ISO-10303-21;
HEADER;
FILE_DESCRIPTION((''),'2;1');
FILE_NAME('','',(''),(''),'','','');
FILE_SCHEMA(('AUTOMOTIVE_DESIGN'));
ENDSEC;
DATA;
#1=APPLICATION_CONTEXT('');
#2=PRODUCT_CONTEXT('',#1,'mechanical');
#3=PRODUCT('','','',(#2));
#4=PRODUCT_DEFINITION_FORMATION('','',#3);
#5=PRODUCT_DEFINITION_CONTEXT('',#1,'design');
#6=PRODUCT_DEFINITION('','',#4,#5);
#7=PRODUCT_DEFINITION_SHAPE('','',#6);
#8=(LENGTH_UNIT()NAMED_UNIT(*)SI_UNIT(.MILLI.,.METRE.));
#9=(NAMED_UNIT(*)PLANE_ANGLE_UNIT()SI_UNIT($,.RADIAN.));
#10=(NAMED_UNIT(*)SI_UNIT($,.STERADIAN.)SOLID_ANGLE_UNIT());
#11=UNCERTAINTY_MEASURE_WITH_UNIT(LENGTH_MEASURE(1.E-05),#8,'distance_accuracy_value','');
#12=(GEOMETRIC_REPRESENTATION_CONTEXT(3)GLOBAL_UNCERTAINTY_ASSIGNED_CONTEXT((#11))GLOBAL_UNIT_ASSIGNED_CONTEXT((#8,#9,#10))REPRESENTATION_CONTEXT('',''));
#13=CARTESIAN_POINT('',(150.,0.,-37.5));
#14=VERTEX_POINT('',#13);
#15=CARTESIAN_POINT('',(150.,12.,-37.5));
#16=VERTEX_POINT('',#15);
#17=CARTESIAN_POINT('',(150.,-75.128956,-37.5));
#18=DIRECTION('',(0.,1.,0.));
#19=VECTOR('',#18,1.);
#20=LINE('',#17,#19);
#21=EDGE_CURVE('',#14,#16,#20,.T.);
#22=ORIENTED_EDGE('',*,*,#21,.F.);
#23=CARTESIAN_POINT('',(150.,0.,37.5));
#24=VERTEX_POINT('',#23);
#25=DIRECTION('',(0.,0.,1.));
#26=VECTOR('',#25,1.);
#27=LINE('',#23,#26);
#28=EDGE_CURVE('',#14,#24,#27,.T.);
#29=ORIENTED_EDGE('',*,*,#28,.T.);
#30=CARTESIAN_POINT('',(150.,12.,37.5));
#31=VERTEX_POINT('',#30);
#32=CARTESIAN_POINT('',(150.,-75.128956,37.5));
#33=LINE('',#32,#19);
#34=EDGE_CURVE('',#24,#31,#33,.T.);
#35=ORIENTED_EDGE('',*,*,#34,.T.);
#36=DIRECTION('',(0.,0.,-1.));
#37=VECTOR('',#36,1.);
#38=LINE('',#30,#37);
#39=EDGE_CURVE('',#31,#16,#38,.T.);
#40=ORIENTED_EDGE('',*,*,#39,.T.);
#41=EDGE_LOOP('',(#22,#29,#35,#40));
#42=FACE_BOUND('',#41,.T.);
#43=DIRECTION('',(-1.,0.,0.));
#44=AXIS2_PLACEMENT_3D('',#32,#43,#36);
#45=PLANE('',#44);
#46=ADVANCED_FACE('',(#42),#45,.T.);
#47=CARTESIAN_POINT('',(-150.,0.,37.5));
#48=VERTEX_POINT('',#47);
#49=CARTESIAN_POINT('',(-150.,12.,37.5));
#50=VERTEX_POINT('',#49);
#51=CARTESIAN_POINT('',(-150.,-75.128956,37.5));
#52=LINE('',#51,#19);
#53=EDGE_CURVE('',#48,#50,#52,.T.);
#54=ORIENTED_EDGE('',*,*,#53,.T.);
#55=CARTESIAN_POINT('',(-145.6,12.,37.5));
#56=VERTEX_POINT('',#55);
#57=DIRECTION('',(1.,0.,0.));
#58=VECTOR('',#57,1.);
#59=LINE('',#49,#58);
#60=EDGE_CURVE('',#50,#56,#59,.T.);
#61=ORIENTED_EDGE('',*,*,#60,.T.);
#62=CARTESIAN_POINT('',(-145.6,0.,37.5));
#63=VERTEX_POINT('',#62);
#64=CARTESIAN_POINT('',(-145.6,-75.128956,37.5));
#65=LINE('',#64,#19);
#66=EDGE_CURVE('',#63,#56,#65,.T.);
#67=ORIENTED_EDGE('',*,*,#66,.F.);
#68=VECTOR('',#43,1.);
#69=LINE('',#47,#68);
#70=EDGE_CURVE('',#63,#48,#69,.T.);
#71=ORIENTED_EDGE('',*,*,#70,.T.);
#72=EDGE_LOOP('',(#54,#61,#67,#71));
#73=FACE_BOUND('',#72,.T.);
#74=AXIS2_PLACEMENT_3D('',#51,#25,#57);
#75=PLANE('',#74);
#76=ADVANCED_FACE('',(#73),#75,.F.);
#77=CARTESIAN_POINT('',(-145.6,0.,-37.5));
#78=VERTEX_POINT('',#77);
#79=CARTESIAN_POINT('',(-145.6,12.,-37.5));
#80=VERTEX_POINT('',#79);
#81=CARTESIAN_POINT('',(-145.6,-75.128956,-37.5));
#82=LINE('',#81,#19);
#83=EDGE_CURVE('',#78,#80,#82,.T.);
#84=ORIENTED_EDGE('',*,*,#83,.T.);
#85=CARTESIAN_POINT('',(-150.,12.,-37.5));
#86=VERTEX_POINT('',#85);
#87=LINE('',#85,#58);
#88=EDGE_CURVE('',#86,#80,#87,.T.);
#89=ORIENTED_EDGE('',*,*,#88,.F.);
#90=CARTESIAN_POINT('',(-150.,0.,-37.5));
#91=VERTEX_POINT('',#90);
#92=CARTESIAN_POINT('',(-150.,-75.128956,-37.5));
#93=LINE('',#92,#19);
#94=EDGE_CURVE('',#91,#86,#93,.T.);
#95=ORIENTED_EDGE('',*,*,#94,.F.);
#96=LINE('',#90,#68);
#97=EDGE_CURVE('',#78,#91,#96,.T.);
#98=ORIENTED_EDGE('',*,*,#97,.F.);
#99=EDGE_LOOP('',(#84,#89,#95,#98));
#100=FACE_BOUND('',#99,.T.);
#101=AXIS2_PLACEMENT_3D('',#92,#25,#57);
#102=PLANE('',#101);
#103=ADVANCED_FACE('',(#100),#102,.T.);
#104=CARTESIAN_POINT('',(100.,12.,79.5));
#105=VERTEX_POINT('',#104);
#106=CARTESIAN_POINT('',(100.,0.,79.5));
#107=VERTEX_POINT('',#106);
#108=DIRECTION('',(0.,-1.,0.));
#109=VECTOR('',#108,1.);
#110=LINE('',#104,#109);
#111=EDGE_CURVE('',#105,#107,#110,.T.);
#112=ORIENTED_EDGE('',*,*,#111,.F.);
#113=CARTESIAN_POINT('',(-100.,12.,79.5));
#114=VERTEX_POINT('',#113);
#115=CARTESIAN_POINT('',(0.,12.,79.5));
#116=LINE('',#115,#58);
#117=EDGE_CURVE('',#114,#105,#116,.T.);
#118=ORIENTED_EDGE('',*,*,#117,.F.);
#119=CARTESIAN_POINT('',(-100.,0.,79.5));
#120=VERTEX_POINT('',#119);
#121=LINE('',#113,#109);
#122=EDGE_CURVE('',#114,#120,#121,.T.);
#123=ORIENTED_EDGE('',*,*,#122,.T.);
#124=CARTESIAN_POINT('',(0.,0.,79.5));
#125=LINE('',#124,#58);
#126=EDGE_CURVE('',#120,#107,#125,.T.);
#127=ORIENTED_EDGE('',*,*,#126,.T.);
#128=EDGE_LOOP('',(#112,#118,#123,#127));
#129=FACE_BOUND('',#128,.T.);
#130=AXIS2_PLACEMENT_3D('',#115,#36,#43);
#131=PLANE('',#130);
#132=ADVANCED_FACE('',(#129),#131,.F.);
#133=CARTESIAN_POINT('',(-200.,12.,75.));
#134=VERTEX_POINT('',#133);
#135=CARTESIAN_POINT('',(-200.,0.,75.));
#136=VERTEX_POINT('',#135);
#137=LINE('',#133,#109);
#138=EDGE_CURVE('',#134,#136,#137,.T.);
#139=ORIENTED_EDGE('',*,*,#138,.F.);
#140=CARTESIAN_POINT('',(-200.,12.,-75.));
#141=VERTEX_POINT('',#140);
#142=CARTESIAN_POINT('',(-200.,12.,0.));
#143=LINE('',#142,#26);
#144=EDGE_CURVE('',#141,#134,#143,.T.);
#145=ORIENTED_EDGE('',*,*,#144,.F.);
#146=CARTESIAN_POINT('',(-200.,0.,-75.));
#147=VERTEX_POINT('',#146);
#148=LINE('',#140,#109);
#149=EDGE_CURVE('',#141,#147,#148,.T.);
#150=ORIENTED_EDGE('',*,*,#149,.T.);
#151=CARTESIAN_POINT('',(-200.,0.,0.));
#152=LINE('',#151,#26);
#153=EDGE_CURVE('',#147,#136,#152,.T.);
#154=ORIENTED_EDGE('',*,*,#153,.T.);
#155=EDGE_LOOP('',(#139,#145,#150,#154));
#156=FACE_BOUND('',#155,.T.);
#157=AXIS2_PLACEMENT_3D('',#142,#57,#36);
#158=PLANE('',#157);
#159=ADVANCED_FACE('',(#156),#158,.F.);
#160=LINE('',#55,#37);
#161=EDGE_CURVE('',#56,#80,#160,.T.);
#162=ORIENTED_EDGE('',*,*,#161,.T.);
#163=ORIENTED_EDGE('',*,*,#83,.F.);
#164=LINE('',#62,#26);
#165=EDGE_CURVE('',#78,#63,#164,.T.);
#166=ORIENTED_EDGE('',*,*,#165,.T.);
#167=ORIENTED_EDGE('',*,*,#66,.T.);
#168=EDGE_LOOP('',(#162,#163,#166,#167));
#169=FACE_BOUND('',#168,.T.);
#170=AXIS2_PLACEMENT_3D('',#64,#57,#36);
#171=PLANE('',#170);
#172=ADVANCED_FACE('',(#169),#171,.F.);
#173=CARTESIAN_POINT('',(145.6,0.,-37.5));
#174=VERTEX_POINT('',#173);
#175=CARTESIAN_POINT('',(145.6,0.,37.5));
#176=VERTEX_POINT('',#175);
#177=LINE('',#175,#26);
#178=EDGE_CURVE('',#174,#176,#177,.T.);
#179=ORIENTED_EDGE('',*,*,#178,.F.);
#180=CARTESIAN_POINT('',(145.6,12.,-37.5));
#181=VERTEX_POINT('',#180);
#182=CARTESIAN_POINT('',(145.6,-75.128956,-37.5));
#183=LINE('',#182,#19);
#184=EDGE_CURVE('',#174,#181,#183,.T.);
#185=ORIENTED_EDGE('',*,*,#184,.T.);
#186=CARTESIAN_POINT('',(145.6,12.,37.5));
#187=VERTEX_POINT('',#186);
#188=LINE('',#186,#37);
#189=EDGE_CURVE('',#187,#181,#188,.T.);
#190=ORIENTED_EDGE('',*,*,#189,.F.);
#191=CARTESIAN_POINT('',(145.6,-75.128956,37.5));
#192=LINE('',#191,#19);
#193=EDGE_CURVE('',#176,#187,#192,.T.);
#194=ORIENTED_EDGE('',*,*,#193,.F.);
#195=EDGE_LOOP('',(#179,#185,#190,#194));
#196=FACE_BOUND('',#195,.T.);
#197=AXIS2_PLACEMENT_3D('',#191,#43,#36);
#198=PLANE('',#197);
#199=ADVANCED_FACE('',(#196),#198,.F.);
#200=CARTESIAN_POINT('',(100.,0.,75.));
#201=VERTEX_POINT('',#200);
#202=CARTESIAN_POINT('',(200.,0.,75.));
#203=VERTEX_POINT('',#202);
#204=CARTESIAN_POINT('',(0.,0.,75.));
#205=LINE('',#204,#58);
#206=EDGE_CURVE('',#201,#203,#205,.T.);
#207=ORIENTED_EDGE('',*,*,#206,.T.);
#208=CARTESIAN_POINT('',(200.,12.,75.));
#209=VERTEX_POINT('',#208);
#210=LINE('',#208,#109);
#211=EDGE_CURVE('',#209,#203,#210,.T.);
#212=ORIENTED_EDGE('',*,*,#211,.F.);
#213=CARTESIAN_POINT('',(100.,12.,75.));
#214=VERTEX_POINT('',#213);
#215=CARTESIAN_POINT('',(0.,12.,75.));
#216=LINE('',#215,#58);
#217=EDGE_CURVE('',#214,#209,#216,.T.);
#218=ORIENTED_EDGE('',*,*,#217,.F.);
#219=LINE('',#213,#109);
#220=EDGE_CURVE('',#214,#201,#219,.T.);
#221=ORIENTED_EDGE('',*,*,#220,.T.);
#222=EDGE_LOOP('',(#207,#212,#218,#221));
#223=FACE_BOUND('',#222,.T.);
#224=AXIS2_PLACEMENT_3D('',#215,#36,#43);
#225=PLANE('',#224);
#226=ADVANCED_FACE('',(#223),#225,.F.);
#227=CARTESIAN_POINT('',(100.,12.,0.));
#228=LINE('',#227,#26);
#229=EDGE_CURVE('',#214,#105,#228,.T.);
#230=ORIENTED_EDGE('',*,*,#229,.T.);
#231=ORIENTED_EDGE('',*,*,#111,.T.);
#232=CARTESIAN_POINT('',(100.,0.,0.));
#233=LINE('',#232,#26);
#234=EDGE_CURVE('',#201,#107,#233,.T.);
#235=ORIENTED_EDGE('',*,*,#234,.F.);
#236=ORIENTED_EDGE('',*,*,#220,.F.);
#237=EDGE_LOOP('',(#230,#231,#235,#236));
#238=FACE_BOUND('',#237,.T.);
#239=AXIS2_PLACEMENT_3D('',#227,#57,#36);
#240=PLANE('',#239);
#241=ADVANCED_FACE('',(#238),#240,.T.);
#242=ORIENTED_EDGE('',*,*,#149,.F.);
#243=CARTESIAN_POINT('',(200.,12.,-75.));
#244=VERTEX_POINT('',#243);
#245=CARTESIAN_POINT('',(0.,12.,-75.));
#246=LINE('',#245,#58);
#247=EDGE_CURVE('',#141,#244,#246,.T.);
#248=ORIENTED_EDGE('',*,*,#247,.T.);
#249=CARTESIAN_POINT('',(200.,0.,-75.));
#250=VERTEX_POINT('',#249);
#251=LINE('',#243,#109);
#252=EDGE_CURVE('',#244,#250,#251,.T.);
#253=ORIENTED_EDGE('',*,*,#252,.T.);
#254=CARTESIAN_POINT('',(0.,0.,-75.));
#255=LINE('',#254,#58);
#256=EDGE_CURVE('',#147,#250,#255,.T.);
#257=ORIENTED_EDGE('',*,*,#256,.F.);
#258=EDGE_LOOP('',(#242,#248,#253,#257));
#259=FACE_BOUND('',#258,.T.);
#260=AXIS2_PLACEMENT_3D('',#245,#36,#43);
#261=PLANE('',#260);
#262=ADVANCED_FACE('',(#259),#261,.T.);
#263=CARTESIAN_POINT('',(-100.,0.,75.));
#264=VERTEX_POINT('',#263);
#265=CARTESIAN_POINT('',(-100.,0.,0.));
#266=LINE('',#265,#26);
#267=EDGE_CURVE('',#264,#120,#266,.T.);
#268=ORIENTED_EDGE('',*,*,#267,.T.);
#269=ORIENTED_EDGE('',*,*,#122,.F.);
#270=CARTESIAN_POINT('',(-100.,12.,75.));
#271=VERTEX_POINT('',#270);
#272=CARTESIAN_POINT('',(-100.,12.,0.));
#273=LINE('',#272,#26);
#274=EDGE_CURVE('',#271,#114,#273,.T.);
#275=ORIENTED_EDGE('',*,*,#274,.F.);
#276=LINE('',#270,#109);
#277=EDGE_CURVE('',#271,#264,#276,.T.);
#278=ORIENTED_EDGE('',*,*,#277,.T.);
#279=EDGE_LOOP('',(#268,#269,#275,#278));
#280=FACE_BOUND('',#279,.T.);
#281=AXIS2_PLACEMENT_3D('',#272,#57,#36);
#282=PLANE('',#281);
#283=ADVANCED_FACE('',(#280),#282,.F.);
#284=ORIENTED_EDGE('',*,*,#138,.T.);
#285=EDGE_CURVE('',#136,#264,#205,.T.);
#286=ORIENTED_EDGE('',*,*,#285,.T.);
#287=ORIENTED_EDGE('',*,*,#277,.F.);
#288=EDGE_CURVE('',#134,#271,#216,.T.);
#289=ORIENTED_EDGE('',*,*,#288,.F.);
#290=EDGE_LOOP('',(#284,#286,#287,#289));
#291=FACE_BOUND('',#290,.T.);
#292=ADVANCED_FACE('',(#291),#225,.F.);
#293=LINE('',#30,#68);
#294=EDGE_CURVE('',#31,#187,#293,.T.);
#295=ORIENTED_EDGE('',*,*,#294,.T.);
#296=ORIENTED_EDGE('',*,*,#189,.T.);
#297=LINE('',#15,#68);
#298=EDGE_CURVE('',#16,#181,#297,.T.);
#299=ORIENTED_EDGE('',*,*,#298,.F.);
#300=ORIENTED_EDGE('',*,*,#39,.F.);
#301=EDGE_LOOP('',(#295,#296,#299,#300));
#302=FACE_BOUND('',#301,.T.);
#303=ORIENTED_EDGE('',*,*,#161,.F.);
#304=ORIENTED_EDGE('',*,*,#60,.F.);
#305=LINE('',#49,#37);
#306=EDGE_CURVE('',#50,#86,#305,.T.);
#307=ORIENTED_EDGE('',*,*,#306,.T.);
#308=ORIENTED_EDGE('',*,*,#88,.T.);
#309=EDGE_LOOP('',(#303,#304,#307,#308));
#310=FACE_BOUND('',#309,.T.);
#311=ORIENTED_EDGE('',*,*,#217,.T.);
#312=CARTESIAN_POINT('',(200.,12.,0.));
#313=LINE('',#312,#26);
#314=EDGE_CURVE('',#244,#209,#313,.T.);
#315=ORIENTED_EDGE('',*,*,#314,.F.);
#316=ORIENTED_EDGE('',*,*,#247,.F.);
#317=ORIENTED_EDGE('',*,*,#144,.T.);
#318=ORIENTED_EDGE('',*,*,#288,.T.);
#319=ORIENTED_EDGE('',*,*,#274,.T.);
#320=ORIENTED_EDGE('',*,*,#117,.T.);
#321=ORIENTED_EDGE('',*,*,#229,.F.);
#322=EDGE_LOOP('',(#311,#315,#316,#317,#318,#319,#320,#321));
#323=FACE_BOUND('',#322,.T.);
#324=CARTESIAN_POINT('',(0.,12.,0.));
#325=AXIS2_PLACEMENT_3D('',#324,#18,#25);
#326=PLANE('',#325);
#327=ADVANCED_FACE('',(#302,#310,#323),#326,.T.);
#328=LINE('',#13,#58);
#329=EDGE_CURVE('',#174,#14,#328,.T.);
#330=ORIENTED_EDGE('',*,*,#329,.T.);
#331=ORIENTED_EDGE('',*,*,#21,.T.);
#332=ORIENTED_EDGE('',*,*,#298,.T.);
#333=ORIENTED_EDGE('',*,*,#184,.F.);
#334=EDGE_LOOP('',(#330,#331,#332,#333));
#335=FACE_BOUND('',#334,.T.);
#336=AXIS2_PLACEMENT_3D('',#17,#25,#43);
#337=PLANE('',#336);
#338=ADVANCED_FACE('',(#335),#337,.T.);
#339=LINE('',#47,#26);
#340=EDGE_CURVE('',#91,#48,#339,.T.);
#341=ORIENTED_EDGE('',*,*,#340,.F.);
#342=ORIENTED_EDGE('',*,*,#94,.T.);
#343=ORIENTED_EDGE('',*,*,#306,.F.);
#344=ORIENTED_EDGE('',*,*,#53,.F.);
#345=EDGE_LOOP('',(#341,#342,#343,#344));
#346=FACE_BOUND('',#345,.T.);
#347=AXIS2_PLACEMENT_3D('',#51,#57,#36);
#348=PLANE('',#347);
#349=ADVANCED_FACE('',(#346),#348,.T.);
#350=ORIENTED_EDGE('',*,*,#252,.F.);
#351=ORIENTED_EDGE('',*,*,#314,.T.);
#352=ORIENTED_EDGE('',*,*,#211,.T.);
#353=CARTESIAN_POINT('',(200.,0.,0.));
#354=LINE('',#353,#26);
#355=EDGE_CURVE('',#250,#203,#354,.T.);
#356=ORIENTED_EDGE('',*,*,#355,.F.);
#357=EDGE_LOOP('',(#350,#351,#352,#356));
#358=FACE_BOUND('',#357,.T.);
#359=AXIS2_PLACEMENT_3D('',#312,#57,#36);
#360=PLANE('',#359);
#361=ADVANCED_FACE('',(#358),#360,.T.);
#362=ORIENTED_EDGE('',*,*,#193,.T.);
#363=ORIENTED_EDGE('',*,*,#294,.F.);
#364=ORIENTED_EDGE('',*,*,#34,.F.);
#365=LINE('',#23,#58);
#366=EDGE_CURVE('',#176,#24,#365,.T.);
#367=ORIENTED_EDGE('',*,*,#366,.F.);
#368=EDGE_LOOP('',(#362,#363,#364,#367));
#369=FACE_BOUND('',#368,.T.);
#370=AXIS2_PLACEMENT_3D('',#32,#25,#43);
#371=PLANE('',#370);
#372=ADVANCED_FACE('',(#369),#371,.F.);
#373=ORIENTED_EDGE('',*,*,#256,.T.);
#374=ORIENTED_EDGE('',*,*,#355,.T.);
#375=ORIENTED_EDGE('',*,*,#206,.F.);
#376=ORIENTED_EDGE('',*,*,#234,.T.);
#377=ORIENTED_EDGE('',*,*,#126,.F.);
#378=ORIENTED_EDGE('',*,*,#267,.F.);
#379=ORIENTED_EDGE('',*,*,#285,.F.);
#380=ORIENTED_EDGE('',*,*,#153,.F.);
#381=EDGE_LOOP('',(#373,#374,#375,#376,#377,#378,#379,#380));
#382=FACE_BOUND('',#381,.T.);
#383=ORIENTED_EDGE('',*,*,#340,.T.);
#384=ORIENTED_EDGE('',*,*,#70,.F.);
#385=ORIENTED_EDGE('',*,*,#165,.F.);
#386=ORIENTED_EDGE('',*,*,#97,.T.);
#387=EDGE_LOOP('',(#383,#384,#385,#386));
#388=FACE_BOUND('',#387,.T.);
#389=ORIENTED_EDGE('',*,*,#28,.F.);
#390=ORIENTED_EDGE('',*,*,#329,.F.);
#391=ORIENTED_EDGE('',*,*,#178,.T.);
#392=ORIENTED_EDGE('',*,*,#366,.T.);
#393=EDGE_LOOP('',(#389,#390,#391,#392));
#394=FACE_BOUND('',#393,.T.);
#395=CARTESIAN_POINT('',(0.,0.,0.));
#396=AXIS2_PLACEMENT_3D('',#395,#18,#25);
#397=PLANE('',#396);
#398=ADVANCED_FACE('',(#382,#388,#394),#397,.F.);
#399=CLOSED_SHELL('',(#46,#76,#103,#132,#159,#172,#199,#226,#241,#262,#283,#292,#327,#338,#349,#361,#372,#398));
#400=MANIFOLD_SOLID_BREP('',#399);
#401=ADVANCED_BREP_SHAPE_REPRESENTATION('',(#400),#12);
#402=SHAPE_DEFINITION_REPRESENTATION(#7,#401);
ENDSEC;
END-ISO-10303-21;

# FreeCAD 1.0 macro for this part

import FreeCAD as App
import Part
import Sketcher

V = App.Vector
Q = App.Units.Quantity


def add_polygon(sketch, points):
    """Adds a closed chain of lines whose ends are joined by coincident constraints."""
    first, n = sketch.GeometryCount, len(points)
    for a, b in zip(points, points[1:] + points[:1]):
        sketch.addGeometry(Part.LineSegment(App.Vector(*a, 0), App.Vector(*b, 0)), False)
    for i in range(n):
        sketch.addConstraint(Sketcher.Constraint("Coincident", first + i, 2, first + (i + 1) % n, 1))

doc = App.newDocument("Part")
body = doc.addObject("PartDesign::Body", "Body")

sketch1 = body.newObject("Sketcher::SketchObject", "Sketch")
sketch1.AttachmentSupport = (doc.getObject("XZ_Plane"), [""])
sketch1.MapMode = "FlatFace"
add_polygon(sketch1, [(200, -75), (-200, -75), (-200, 75), (-100, 75), (-100, 79.5), (100, 79.5), (100, 75), (200, 75)])
sketch1.addConstraint(Sketcher.Constraint("Horizontal", 0))
sketch1.addConstraint(Sketcher.Constraint("Vertical", 1))
sketch1.addConstraint(Sketcher.Constraint("Horizontal", 2))
sketch1.addConstraint(Sketcher.Constraint("Vertical", 3))
sketch1.addConstraint(Sketcher.Constraint("Horizontal", 4))
sketch1.addConstraint(Sketcher.Constraint("Vertical", 5))
sketch1.addConstraint(Sketcher.Constraint("Horizontal", 6))
sketch1.addConstraint(Sketcher.Constraint("Vertical", 7))
sketch1.addConstraint(Sketcher.Constraint("Symmetric", 0, 2, 6, 2, -1, 1))
sketch1.addConstraint(Sketcher.Constraint("Symmetric", 2, 2, 5, 2, -2))
sketch1.addConstraint(Sketcher.Constraint("DistanceX", 0, 2, 0, 1, Q("400 mm")))
sketch1.addConstraint(Sketcher.Constraint("DistanceX", 2, 1, 2, 2, Q("100 mm")))
sketch1.addConstraint(Sketcher.Constraint("DistanceY", 1, 1, 1, 2, Q("150 mm")))
sketch1.addConstraint(Sketcher.Constraint("DistanceY", 3, 1, 3, 2, Q("4.5 mm")))
pad1 = body.newObject("PartDesign::Pad", "Pad")
pad1.Profile = sketch1
pad1.Length = 12
pad1.Reversed = True

sketch2 = body.newObject("Sketcher::SketchObject", "Sketch001")
sketch2.AttachmentSupport = (doc.getObject("XZ_Plane"), [""])
sketch2.MapMode = "FlatFace"
sketch2.AttachmentOffset = App.Placement(V(0, 0, -12), App.Rotation())
add_polygon(sketch2, [(-150, -37.5), (-150, 37.5), (-145.6, 37.5), (-145.6, -37.5)])
sketch2.addConstraint(Sketcher.Constraint("Vertical", 0))
sketch2.addConstraint(Sketcher.Constraint("Horizontal", 1))
sketch2.addConstraint(Sketcher.Constraint("Vertical", 2))
sketch2.addConstraint(Sketcher.Constraint("Horizontal", 3))
sketch2.addConstraint(Sketcher.Constraint("DistanceY", 0, 1, 0, 2, Q("75 mm")))
sketch2.addConstraint(Sketcher.Constraint("DistanceX", 1, 1, 1, 2, Q("4.4 mm")))
sketch2.addConstraint(Sketcher.Constraint("DistanceX", 0, 2, -1, 1, Q("150 mm")))
sketch2.addConstraint(Sketcher.Constraint("DistanceY", -1, 1, 0, 2, Q("37.5 mm")))
pocket1 = body.newObject("PartDesign::Pocket", "Pocket")
pocket1.Profile = sketch2
pocket1.Length = 12
pocket1.Reversed = True
doc.recompute()

mirrored = body.newObject("PartDesign::Mirrored", "Mirrored")
mirrored.Originals = [pocket1]
mirrored.MirrorPlane = (doc.getObject("YZ_Plane"), [""])
body.Tip = mirrored

doc.recompute()
